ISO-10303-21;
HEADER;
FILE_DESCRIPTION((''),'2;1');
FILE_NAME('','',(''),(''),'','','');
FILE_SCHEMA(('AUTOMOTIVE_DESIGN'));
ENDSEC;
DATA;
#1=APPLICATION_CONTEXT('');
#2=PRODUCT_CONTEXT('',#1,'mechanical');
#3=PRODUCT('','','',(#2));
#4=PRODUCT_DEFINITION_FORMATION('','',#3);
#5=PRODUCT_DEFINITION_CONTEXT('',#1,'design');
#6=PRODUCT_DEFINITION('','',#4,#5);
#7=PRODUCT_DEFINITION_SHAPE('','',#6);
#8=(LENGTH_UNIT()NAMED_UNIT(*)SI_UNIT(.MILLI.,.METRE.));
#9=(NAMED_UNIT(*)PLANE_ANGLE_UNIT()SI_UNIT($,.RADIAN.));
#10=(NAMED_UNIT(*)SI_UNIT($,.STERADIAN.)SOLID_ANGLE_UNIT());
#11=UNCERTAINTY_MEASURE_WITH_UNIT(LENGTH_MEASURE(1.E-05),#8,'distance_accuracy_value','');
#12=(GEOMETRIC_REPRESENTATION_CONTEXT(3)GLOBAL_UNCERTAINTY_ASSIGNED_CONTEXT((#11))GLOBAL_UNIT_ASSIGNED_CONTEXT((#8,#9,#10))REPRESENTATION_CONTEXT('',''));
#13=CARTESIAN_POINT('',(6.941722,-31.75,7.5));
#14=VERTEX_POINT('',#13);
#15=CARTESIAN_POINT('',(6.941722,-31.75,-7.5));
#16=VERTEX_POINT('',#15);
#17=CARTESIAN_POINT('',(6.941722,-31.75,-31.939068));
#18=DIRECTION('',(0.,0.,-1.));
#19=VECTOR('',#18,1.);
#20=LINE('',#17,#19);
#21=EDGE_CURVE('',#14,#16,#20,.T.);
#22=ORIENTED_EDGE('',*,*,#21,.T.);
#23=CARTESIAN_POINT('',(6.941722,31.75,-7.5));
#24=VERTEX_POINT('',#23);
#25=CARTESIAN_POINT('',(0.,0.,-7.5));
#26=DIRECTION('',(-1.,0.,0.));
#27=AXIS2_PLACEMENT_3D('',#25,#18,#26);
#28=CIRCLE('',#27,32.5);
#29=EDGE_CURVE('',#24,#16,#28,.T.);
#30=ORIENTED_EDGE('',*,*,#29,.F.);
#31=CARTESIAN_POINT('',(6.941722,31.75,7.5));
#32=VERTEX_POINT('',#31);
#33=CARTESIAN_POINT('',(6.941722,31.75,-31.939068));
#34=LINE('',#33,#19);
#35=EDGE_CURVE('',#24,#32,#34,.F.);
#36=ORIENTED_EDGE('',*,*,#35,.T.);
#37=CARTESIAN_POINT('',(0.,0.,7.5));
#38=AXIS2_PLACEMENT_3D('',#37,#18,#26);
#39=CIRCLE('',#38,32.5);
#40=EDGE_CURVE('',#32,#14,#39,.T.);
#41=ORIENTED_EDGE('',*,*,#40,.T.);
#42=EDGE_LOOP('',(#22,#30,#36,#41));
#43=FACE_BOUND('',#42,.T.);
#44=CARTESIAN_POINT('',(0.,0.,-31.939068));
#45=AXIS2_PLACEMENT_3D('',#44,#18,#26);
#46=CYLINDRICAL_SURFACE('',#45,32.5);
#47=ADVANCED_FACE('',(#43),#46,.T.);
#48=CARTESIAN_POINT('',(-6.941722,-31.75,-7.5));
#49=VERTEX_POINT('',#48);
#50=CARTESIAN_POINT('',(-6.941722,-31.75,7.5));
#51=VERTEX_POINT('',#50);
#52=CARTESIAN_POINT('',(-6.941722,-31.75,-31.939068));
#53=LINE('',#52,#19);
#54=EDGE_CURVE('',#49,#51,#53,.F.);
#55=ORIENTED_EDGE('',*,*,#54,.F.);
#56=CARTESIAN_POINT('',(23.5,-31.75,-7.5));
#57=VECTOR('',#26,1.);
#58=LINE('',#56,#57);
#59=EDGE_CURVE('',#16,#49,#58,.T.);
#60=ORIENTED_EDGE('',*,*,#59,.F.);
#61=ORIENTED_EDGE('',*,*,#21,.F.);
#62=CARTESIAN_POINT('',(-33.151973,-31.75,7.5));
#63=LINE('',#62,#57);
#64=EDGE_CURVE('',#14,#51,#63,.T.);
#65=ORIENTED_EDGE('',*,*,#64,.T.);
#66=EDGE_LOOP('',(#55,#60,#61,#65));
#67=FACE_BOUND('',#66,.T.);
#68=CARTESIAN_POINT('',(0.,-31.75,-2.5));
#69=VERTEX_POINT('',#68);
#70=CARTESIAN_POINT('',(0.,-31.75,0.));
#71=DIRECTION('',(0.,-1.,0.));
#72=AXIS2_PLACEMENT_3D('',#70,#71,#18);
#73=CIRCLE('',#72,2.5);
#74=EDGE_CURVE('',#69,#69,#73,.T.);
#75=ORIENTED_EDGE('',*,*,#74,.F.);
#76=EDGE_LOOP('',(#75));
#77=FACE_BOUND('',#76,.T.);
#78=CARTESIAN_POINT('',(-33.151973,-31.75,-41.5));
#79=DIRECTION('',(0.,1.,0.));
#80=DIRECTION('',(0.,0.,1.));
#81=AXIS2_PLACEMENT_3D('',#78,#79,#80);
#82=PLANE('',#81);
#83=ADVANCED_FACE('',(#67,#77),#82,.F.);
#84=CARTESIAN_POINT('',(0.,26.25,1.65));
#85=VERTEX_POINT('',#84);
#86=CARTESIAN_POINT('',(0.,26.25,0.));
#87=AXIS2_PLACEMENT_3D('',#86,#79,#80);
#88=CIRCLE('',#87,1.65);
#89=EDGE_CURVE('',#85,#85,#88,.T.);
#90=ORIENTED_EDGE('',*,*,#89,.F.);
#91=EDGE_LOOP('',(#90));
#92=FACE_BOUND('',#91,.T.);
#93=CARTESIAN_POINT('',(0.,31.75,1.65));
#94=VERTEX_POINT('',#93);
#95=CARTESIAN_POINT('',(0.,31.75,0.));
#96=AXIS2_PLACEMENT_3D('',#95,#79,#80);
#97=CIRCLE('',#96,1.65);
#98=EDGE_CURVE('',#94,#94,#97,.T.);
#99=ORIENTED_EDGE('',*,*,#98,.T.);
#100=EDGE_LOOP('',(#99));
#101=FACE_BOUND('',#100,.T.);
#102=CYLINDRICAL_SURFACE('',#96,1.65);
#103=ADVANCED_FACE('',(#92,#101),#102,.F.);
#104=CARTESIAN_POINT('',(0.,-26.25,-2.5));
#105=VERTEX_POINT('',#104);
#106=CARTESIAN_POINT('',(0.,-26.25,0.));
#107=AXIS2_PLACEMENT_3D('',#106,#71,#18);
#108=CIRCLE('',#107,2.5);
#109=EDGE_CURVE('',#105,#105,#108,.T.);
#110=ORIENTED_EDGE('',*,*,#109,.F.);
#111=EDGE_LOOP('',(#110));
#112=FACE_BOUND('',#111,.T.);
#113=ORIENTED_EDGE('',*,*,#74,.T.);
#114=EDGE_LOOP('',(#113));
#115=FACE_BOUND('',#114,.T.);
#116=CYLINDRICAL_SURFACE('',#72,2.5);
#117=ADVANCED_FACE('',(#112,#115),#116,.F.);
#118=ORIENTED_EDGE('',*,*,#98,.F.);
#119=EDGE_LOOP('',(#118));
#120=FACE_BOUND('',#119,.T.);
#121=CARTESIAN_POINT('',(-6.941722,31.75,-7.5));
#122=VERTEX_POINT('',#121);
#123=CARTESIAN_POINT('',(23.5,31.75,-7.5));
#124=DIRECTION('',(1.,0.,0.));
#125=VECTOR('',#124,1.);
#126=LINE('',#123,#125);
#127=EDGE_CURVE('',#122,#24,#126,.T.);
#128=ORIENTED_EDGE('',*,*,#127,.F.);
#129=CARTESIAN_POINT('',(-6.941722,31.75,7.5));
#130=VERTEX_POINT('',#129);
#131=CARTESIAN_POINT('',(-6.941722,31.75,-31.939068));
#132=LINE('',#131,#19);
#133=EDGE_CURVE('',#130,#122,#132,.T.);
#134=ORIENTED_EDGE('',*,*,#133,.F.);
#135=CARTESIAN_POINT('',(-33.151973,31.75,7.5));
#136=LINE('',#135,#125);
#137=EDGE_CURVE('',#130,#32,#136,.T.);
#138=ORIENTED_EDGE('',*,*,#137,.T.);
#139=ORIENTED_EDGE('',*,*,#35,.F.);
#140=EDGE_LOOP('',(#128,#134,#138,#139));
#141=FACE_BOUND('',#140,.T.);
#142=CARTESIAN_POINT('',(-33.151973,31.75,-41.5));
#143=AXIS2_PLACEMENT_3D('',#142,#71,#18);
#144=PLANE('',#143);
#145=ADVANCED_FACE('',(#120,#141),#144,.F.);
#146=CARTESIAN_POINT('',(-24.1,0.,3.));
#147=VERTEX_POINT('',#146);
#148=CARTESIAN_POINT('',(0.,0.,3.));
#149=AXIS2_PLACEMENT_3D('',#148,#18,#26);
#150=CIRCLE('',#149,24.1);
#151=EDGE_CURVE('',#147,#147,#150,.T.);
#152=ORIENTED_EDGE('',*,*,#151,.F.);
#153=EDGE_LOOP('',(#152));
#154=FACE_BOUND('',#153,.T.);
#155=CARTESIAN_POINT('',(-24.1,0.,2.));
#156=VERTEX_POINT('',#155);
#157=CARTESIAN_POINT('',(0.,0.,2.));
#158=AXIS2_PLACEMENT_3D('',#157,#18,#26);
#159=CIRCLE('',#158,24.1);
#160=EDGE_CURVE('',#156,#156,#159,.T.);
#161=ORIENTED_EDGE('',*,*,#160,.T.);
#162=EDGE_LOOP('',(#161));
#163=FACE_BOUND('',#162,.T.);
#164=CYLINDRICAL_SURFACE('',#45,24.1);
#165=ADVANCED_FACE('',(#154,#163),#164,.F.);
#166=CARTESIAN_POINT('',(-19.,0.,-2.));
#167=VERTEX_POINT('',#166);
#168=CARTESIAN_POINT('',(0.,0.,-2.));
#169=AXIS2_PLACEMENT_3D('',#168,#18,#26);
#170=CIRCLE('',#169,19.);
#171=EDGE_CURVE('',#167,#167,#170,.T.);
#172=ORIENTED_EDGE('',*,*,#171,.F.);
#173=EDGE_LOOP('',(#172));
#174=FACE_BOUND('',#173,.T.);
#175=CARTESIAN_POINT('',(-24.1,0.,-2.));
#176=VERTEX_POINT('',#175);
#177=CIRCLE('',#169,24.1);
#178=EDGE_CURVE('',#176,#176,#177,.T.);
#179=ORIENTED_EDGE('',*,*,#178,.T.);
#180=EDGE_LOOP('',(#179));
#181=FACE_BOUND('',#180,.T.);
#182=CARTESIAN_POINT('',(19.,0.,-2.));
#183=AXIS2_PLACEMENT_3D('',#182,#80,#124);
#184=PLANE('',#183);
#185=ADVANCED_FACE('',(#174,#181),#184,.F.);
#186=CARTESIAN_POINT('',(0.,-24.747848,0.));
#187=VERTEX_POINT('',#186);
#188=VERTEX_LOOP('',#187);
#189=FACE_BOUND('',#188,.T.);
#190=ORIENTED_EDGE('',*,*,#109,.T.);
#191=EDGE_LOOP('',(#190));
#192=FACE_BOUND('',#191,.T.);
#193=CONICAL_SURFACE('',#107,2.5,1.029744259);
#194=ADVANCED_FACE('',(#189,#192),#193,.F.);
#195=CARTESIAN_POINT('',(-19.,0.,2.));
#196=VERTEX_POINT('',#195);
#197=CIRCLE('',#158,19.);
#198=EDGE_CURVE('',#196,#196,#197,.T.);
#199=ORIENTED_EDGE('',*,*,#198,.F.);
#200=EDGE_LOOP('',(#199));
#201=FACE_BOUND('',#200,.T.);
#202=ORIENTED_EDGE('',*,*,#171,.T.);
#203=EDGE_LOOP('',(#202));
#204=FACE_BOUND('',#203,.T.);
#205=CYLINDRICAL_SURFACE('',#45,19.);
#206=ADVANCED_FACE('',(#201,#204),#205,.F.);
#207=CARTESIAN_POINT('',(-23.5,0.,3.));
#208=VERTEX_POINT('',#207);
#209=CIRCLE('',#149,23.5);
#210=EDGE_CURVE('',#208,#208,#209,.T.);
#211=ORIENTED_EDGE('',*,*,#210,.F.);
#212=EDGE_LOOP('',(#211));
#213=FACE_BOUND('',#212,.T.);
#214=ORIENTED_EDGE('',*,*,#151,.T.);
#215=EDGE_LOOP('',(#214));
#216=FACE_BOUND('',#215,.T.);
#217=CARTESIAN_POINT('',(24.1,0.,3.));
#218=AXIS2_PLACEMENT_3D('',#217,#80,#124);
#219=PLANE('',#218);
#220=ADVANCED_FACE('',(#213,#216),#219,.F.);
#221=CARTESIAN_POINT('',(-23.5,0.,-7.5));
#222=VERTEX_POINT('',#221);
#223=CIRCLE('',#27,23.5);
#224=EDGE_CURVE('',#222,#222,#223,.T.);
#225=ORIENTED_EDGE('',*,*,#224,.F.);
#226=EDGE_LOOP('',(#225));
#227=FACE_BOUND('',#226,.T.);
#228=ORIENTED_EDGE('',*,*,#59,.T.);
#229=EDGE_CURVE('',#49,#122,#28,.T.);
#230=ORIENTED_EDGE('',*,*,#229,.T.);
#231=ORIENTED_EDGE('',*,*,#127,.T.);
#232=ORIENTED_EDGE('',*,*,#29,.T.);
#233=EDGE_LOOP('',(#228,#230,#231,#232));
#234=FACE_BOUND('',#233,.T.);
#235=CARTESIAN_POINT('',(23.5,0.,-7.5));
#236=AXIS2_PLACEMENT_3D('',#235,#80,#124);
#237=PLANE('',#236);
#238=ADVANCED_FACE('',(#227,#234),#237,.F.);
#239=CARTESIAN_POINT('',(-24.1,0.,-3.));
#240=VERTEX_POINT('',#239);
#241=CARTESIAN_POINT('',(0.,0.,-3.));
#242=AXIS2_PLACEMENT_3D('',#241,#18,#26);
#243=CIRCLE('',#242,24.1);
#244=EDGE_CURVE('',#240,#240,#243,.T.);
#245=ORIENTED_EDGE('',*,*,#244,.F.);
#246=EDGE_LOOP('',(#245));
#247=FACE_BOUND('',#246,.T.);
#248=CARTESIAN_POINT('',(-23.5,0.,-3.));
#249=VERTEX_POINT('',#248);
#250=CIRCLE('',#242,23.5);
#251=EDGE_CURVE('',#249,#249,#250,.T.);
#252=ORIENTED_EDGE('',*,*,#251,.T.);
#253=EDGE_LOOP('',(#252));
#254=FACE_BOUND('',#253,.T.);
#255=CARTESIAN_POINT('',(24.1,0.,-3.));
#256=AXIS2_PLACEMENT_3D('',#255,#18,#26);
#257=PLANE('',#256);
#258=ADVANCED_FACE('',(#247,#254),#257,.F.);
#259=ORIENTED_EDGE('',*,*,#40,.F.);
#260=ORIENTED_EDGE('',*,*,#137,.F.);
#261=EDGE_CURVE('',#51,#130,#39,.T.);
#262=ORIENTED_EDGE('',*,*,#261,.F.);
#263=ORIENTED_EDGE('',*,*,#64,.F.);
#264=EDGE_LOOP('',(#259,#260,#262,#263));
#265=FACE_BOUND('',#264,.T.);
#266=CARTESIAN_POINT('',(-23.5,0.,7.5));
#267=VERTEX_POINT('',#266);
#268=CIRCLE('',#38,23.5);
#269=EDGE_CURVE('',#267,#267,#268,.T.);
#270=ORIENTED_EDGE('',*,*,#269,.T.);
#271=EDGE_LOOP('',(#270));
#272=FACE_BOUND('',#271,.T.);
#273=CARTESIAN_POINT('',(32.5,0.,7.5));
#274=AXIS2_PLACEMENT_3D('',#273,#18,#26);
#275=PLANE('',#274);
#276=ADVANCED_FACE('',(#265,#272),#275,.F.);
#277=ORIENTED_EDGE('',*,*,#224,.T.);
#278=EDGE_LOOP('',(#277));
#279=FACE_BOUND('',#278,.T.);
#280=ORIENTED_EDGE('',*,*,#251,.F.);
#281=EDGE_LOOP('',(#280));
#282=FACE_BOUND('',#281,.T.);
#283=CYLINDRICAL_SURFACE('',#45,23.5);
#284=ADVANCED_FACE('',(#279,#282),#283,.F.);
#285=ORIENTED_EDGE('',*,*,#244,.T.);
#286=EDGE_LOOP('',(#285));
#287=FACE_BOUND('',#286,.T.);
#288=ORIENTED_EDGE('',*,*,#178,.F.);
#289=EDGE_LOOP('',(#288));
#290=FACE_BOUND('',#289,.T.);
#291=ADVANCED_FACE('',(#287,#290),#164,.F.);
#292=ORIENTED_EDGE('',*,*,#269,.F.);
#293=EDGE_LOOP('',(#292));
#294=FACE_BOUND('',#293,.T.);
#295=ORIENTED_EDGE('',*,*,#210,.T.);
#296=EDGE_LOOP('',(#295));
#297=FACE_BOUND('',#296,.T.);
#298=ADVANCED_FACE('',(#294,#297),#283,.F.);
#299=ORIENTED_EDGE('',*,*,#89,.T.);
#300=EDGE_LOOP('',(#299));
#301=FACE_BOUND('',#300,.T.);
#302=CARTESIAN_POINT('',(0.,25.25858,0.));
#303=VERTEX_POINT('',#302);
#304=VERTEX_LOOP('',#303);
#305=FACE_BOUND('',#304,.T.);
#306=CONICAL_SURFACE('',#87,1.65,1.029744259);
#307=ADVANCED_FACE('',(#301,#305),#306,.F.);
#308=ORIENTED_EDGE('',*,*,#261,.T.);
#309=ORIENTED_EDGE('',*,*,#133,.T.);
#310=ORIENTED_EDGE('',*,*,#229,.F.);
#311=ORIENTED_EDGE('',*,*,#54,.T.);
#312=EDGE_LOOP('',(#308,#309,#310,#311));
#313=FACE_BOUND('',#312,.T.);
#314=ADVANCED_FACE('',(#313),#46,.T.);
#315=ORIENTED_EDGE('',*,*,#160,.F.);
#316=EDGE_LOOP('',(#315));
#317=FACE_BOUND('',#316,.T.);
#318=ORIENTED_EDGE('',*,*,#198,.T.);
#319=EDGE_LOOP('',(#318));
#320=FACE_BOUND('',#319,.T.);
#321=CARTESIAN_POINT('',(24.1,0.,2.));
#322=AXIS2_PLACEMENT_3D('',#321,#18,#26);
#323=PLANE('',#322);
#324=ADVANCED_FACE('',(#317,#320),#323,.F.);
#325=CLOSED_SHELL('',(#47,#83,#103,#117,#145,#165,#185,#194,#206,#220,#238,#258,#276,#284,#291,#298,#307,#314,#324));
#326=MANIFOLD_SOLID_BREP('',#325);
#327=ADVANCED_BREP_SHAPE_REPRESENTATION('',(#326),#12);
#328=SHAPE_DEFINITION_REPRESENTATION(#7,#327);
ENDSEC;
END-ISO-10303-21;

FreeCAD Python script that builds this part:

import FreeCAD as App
import Part
import Sketcher

V = App.Vector
Q = App.Units.Quantity

doc = App.newDocument("Part")
body = doc.addObject("PartDesign::Body", "Body")

sketch1 = doc.addObject("Sketcher::SketchObject", "Sketch")
body.addObject(sketch1)
sketch1.AttachmentSupport = (doc.XZ_Plane, [""])
sketch1.MapMode = "FlatFace"
sketch1.addGeometry([
    Part.LineSegment(V(32.5, 7.5, 0), V(32.5, -7.5, 0)),
    Part.LineSegment(V(32.5, -7.5, 0), V(23.5, -7.5, 0)),
    Part.LineSegment(V(23.5, -7.5, 0), V(23.5, -3, 0)),
    Part.LineSegment(V(23.5, -3, 0), V(24.1, -3, 0)),
    Part.LineSegment(V(24.1, -3, 0), V(24.1, -2, 0)),
    Part.LineSegment(V(24.1, -2, 0), V(19, -2, 0)),
    Part.LineSegment(V(19, -2, 0), V(19, 2, 0)),
    Part.LineSegment(V(19, 2, 0), V(24.1, 2, 0)),
    Part.LineSegment(V(24.1, 2, 0), V(24.1, 3, 0)),
    Part.LineSegment(V(24.1, 3, 0), V(23.5, 3, 0)),
    Part.LineSegment(V(23.5, 3, 0), V(23.5, 7.5, 0)),
    Part.LineSegment(V(23.5, 7.5, 0), V(32.5, 7.5, 0)),
], False)
sketch1.addConstraint([
    Sketcher.Constraint("Coincident", 0, 2, 1, 1),
    Sketcher.Constraint("Coincident", 1, 2, 2, 1),
    Sketcher.Constraint("Coincident", 2, 2, 3, 1),
    Sketcher.Constraint("Coincident", 3, 2, 4, 1),
    Sketcher.Constraint("Coincident", 4, 2, 5, 1),
    Sketcher.Constraint("Coincident", 5, 2, 6, 1),
    Sketcher.Constraint("Coincident", 6, 2, 7, 1),
    Sketcher.Constraint("Coincident", 7, 2, 8, 1),
    Sketcher.Constraint("Coincident", 8, 2, 9, 1),
    Sketcher.Constraint("Coincident", 9, 2, 10, 1),
    Sketcher.Constraint("Coincident", 10, 2, 11, 1),
    Sketcher.Constraint("Coincident", 11, 2, 0, 1),
    Sketcher.Constraint("Vertical", 0),
    Sketcher.Constraint("Horizontal", 1),
    Sketcher.Constraint("Vertical", 2),
    Sketcher.Constraint("Horizontal", 3),
    Sketcher.Constraint("Vertical", 4),
    Sketcher.Constraint("Horizontal", 5),
    Sketcher.Constraint("Vertical", 6),
    Sketcher.Constraint("Horizontal", 7),
    Sketcher.Constraint("Vertical", 8),
    Sketcher.Constraint("Horizontal", 9),
    Sketcher.Constraint("Vertical", 10),
    Sketcher.Constraint("Horizontal", 11),
    Sketcher.Constraint("Symmetric", 4, 2, 7, 2, -1),
    Sketcher.Constraint("Symmetric", 2, 2, 9, 2, -1),
    Sketcher.Constraint("Equal", 2, 10),
    Sketcher.Constraint("DistanceX", 1, 2, 1, 1, Q("9 mm")),
    Sketcher.Constraint("DistanceY", 0, 2, 0, 1, Q("15 mm")),
    Sketcher.Constraint("DistanceY", 4, 1, 4, 2, Q("1 mm")),
    Sketcher.Constraint("DistanceY", 6, 1, 6, 2, Q("4 mm")),
    Sketcher.Constraint("DistanceX", 3, 1, 3, 2, Q("0.6 mm")),
    Sketcher.Constraint("DistanceX", 5, 2, 5, 1, Q("5.1 mm")),
    Sketcher.Constraint("DistanceX", -1, 1, 5, 2, Q("19 mm")),
])
revolution = doc.addObject("PartDesign::Revolution", "Revolution")
body.addObject(revolution)
revolution.Profile = sketch1
revolution.ReferenceAxis = (sketch1, ["V_Axis"])
revolution.Angle = 360

sketch2 = doc.addObject("Sketcher::SketchObject", "Sketch001")
body.addObject(sketch2)
sketch2.AttachmentSupport = (doc.XY_Plane, [""])
sketch2.MapMode = "FlatFace"
sketch2.AttachmentOffset = App.Placement(V(0, 0, 7.5), App.Rotation())
sketch2.addGeometry([
    Part.LineSegment(V(-33.151973, 40.99892, 0), V(-33.151973, 31.75, 0)),
    Part.LineSegment(V(-33.151973, 31.75, 0), V(30.869772, 31.75, 0)),
    Part.LineSegment(V(30.869772, 31.75, 0), V(30.869772, 40.99892, 0)),
    Part.LineSegment(V(30.869772, 40.99892, 0), V(-33.151973, 40.99892, 0)),
    Part.LineSegment(V(-33.151973, -31.75, 0), V(-33.151973, -40.99892, 0)),
    Part.LineSegment(V(-33.151973, -40.99892, 0), V(30.869772, -40.99892, 0)),
    Part.LineSegment(V(30.869772, -40.99892, 0), V(30.869772, -31.75, 0)),
    Part.LineSegment(V(30.869772, -31.75, 0), V(-33.151973, -31.75, 0)),
], False)
sketch2.addConstraint([
    Sketcher.Constraint("Coincident", 0, 2, 1, 1),
    Sketcher.Constraint("Coincident", 1, 2, 2, 1),
    Sketcher.Constraint("Coincident", 2, 2, 3, 1),
    Sketcher.Constraint("Coincident", 3, 2, 0, 1),
    Sketcher.Constraint("Coincident", 4, 2, 5, 1),
    Sketcher.Constraint("Coincident", 5, 2, 6, 1),
    Sketcher.Constraint("Coincident", 6, 2, 7, 1),
    Sketcher.Constraint("Coincident", 7, 2, 4, 1),
    Sketcher.Constraint("Vertical", 0),
    Sketcher.Constraint("Horizontal", 1),
    Sketcher.Constraint("Vertical", 2),
    Sketcher.Constraint("Horizontal", 3),
    Sketcher.Constraint("Vertical", 4),
    Sketcher.Constraint("Horizontal", 5),
    Sketcher.Constraint("Vertical", 6),
    Sketcher.Constraint("Horizontal", 7),
    Sketcher.Constraint("Symmetric", 3, 2, 4, 2, -1),
    Sketcher.Constraint("Symmetric", 1, 2, 6, 2, -1),
    Sketcher.Constraint("DistanceY", 6, 2, 1, 2, Q("63.5 mm")),
    Sketcher.Constraint("DistanceY", 0, 2, 0, 1, Q("9.24892 mm")),
    Sketcher.Constraint("DistanceX", 1, 1, 1, 2, Q("64.021744 mm")),
    Sketcher.Constraint("DistanceX", -1, 1, 1, 2, Q("30.869772 mm")),
])
pocket1 = doc.addObject("PartDesign::Pocket", "Pocket")
body.addObject(pocket1)
pocket1.Profile = sketch2
pocket1.Length = 49

sketch3 = doc.addObject("Sketcher::SketchObject", "Sketch002")
body.addObject(sketch3)
sketch3.AttachmentSupport = (doc.XZ_Plane, [""])
sketch3.MapMode = "FlatFace"
sketch3.AttachmentOffset = App.Placement(V(0, 0, -31.75), App.Rotation())
sketch3.addGeometry(Part.Circle(V(0, 0, 0), V(0, 0, 1), 1.65), False)
sketch3.addConstraint([
    Sketcher.Constraint("Coincident", 0, 3, -1, 1),
    Sketcher.Constraint("Diameter", 0, Q("3.3 mm")),
])
doc.recompute()
hole = doc.addObject("PartDesign::Hole", "Hole")
body.addObject(hole)
hole.Profile = sketch3
hole.ThreadType = "None"
hole.Diameter = 3.3
hole.DepthType = "Dimension"
hole.Depth = 5.5
hole.DrillPoint = "Angled"
hole.DrillPointAngle = 118
hole.Reversed = True

sketch4 = doc.addObject("Sketcher::SketchObject", "Sketch003")
body.addObject(sketch4)
sketch4.AttachmentSupport = (doc.XZ_Plane, [""])
sketch4.MapMode = "FlatFace"
sketch4.AttachmentOffset = App.Placement(V(0, 0, 31.75), App.Rotation())
sketch4.addGeometry(Part.Circle(V(0, 0, 0), V(0, 0, 1), 2.5), False)
sketch4.addConstraint([
    Sketcher.Constraint("Coincident", 0, 3, -1, 1),
    Sketcher.Constraint("Diameter", 0, Q("5 mm")),
])
doc.recompute()
hole2 = doc.addObject("PartDesign::Hole", "Hole001")
body.addObject(hole2)
hole2.Profile = sketch4
hole2.ThreadType = "None"
hole2.Diameter = 5
hole2.DepthType = "Dimension"
hole2.Depth = 5.5
hole2.DrillPoint = "Angled"
hole2.DrillPointAngle = 118

doc.recompute()
